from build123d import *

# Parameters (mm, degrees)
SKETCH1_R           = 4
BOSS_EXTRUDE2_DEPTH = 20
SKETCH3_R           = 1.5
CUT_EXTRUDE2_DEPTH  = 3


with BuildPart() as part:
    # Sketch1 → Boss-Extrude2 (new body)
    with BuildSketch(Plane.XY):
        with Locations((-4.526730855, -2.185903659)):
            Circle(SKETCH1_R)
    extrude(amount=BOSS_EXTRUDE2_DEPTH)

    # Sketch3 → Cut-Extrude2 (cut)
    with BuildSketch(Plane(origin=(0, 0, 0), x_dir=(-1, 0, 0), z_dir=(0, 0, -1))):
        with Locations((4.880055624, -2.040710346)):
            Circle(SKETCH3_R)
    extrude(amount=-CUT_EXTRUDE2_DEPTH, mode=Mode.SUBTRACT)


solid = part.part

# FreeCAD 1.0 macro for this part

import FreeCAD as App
import Part
import Sketcher
Q = App.Units.Quantity

doc = App.newDocument("Part")
params = doc.addObject("Spreadsheet::Sheet", "Params")
for row, (alias, value) in enumerate([
    ("sketch1_diameter", "8 mm"),
    ("pad1_length", "20 mm"),
    ("sketch2_diameter", "3 mm"),
    ("pocket1_length", "3 mm"),
], start=1):
    params.set(f"A{row}", alias)
    params.set(f"B{row}", "=" + value)
    params.setAlias(f"B{row}", alias)

body = doc.addObject("PartDesign::Body", "Body")

# Sketch on XY plane
sketch1 = body.newObject("Sketcher::SketchObject", "Sketch")
sketch1.AttachmentSupport = (doc.getObject("XY_Plane"), [""])
sketch1.MapMode = "FlatFace"
sketch1.addGeometry(Part.Circle(App.Vector(-4.5, -2.2, 0), App.Vector(0, 0, 1), 4), False)
sketch1.addConstraint(Sketcher.Constraint("Diameter", 0, Q("8 mm")))
sketch1.addConstraint(Sketcher.Constraint("DistanceX", 0, 3, -1, 1, Q("4.526731 mm")))
sketch1.addConstraint(Sketcher.Constraint("DistanceY", 0, 3, -1, 1, Q("2.185904 mm")))
sketch1.setExpression("Constraints[0]", "Params.sketch1_diameter")
pad1 = body.newObject("PartDesign::Pad", "Pad")
pad1.Profile = sketch1
pad1.setExpression("Length", "Params.pad1_length")

# Sketch on XY plane
sketch2 = body.newObject("Sketcher::SketchObject", "Sketch001")
sketch2.AttachmentSupport = (doc.getObject("XY_Plane"), [""])
sketch2.MapMode = "FlatFace"
sketch2.addGeometry(Part.Circle(App.Vector(-4.9, -2, 0), App.Vector(0, 0, 1), 1.5), False)
sketch2.addConstraint(Sketcher.Constraint("Diameter", 0, Q("3 mm")))
sketch2.addConstraint(Sketcher.Constraint("DistanceY", 0, 3, -1, 1, Q("2.04071 mm")))
sketch2.addConstraint(Sketcher.Constraint("DistanceX", 0, 3, -1, 1, Q("4.880056 mm")))
sketch2.setExpression("Constraints[0]", "Params.sketch2_diameter")
pocket1 = body.newObject("PartDesign::Pocket", "Pocket")
pocket1.Profile = sketch2
pocket1.setExpression("Length", "Params.pocket1_length")
pocket1.Reversed = True

doc.recompute()
